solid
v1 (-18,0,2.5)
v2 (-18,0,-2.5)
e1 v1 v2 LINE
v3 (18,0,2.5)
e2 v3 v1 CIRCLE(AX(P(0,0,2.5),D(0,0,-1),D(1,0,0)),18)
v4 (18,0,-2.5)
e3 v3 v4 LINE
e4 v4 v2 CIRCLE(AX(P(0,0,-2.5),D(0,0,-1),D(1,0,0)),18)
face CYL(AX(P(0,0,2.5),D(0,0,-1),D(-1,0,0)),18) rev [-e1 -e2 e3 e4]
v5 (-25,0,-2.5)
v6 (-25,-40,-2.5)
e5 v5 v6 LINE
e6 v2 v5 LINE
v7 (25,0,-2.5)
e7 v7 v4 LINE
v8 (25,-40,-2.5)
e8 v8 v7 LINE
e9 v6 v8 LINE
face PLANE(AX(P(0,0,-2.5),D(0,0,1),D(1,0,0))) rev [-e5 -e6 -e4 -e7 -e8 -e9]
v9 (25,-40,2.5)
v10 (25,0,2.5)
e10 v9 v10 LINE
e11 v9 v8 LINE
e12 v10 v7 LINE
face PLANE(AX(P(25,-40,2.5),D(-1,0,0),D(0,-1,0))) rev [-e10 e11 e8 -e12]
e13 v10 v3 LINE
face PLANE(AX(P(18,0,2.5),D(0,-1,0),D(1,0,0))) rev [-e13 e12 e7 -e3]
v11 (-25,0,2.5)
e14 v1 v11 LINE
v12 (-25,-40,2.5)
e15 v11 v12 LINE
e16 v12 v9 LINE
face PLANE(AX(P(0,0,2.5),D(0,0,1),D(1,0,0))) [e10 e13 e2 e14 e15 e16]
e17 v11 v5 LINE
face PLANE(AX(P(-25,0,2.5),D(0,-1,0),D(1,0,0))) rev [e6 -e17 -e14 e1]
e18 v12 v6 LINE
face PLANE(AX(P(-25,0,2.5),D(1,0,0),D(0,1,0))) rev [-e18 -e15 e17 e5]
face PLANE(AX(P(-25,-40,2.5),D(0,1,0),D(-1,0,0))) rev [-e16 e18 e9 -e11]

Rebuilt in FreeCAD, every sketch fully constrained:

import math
import FreeCAD as App
import Part
import Sketcher
Q = App.Units.Quantity

doc = App.newDocument("Part")
params = doc.addObject("Spreadsheet::Sheet", "Params")
for row, (alias, value) in enumerate([
    ("sketch1_radius", "18 mm"),
    ("sketch1_width", "50 mm"),
    ("sketch1_height", "40 mm"),
    ("pad1_length", "5 mm"),
], start=1):
    params.set(f"A{row}", alias)
    params.set(f"B{row}", "=" + value)
    params.setAlias(f"B{row}", alias)

body = doc.addObject("PartDesign::Body", "Body")

# Sketch on XY plane
sketch1 = body.newObject("Sketcher::SketchObject", "Sketch")
sketch1.AttachmentSupport = (doc.getObject("XY_Plane"), [""])
sketch1.MapMode = "FlatFace"
sketch1.addGeometry(Part.LineSegment(App.Vector(-25, 0, 0), App.Vector(-25, -40, 0)), False)
sketch1.addGeometry(Part.LineSegment(App.Vector(-25, -40, 0), App.Vector(25, -40, 0)), False)
sketch1.addGeometry(Part.LineSegment(App.Vector(25, -40, 0), App.Vector(25, 0, 0)), False)
sketch1.addGeometry(Part.LineSegment(App.Vector(25, 0, 0), App.Vector(18, 0, 0)), False)
sketch1.addGeometry(Part.ArcOfCircle(Part.Circle(App.Vector(0, 0, 0), App.Vector(0, 0, 1), 18), math.radians(180), math.radians(360)), False)
sketch1.addGeometry(Part.LineSegment(App.Vector(-18, 0, 0), App.Vector(-25, 0, 0)), False)
sketch1.addConstraint(Sketcher.Constraint("Coincident", 0, 2, 1, 1))
sketch1.addConstraint(Sketcher.Constraint("Coincident", 1, 2, 2, 1))
sketch1.addConstraint(Sketcher.Constraint("Coincident", 2, 2, 3, 1))
sketch1.addConstraint(Sketcher.Constraint("Coincident", 3, 2, 4, 2))
sketch1.addConstraint(Sketcher.Constraint("Coincident", 4, 1, 5, 1))
sketch1.addConstraint(Sketcher.Constraint("Coincident", 5, 2, 0, 1))
sketch1.addConstraint(Sketcher.Constraint("Vertical", 0))
sketch1.addConstraint(Sketcher.Constraint("Horizontal", 1))
sketch1.addConstraint(Sketcher.Constraint("Vertical", 2))
sketch1.addConstraint(Sketcher.Constraint("Horizontal", 3))
sketch1.addConstraint(Sketcher.Constraint("Horizontal", 5))
sketch1.addConstraint(Sketcher.Constraint("Coincident", 4, 3, -1, 1))
sketch1.addConstraint(Sketcher.Constraint("Symmetric", 2, 2, 5, 2, -1, 1))
sketch1.addConstraint(Sketcher.Constraint("PointOnObject", 2, 2, -1))
sketch1.addConstraint(Sketcher.Constraint("Radius", 4, Q("18 mm")))
sketch1.addConstraint(Sketcher.Constraint("DistanceX", 1, 1, 1, 2, Q("50 mm")))
sketch1.addConstraint(Sketcher.Constraint("DistanceY", 0, 2, 0, 1, Q("40 mm")))
sketch1.setExpression("Constraints[14]", "Params.sketch1_radius")
sketch1.setExpression("Constraints[15]", "Params.sketch1_width")
sketch1.setExpression("Constraints[16]", "Params.sketch1_height")
pad1 = body.newObject("PartDesign::Pad", "Pad")
pad1.Profile = sketch1
pad1.setExpression("Length", "Params.pad1_length")
pad1.Midplane = True

doc.recompute()
